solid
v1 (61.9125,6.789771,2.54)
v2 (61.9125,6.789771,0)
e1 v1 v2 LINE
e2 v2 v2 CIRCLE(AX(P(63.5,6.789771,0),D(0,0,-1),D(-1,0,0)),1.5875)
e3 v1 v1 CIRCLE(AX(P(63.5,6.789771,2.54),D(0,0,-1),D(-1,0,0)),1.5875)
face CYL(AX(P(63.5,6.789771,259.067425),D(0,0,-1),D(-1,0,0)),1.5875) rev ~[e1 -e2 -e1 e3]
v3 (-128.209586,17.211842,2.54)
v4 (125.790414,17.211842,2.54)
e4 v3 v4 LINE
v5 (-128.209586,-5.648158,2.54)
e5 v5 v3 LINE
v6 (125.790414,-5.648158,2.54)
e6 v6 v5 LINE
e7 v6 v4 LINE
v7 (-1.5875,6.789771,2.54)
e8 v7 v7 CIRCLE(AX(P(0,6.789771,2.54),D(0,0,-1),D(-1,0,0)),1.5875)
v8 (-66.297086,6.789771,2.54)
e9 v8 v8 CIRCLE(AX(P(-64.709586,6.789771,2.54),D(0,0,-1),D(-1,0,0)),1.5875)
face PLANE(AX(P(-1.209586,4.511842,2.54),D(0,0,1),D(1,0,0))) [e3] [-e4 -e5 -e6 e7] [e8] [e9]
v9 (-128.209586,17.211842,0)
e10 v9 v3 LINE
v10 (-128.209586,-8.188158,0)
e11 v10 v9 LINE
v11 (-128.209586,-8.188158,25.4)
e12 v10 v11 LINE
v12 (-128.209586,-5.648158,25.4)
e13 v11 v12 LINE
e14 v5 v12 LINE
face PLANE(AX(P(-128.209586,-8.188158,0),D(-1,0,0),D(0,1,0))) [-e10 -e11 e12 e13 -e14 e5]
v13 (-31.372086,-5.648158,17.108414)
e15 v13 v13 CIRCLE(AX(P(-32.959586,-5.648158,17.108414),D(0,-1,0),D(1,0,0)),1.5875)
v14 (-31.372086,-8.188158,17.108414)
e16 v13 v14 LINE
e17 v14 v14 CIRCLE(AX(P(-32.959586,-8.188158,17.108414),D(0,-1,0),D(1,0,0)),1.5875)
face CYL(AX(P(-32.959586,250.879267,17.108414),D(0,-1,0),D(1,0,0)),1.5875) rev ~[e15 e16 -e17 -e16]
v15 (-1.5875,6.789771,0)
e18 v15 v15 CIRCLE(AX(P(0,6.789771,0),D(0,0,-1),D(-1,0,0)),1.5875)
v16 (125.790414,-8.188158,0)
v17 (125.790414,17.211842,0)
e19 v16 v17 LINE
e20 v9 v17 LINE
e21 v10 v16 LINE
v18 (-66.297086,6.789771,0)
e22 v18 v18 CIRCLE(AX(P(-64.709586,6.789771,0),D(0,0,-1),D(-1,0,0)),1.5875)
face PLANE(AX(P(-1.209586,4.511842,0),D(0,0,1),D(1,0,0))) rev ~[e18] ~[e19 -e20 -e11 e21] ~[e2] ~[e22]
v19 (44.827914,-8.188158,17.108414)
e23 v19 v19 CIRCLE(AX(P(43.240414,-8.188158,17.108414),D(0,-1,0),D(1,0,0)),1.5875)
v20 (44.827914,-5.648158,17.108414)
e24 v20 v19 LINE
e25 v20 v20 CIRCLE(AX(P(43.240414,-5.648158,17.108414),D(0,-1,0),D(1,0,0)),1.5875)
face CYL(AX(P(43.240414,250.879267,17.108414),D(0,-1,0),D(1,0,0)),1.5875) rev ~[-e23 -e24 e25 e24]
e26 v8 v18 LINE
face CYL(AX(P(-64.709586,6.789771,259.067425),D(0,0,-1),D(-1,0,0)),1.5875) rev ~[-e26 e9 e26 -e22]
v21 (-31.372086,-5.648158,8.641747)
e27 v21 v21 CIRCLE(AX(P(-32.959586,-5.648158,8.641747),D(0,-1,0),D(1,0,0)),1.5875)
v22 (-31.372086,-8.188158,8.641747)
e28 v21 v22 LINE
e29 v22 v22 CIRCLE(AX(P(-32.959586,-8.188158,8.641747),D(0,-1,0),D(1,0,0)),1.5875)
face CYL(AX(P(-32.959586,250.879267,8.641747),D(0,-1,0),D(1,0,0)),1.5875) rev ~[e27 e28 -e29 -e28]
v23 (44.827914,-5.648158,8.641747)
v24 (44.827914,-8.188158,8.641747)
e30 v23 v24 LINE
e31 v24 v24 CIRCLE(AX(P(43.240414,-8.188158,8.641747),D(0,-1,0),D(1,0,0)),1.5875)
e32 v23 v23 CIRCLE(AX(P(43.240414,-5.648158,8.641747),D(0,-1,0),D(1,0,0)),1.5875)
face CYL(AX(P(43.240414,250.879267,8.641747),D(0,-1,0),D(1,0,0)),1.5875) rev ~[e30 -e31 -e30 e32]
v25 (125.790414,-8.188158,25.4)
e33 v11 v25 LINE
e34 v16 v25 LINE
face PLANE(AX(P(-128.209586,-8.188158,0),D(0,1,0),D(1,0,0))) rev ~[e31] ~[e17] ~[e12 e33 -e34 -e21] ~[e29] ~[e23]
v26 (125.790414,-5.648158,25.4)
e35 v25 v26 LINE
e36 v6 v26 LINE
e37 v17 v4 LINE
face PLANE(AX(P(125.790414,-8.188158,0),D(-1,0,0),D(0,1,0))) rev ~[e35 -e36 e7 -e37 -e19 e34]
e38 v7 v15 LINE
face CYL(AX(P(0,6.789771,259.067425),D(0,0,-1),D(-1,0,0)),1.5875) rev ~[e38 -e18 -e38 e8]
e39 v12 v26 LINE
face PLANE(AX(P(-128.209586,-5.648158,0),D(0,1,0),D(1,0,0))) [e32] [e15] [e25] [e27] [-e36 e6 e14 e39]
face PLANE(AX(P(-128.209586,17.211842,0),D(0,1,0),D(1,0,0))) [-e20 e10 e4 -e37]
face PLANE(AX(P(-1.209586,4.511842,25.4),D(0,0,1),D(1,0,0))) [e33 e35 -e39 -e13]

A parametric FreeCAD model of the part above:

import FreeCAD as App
import Part
import Sketcher

V = App.Vector
Q = App.Units.Quantity


def faces_at(feature, points):
    """Names of the faces that lie closest to the given points."""
    faces = feature.Shape.Faces
    near = lambda p: min(range(len(faces)), key=lambda i: faces[i].distToShape(Part.Vertex(*p))[0])
    return sorted({f"Face{near(p) + 1}" for p in points})


def add_polygon(sketch, points):
    """Adds a closed chain of lines whose ends are joined by coincident constraints."""
    first, n = sketch.GeometryCount, len(points)
    for a, b in zip(points, points[1:] + points[:1]):
        sketch.addGeometry(Part.LineSegment(App.Vector(*a, 0), App.Vector(*b, 0)), False)
    for i in range(n):
        sketch.addConstraint(Sketcher.Constraint("Coincident", first + i, 2, first + (i + 1) % n, 1))

doc = App.newDocument("Part")
body = doc.addObject("PartDesign::Body", "Body")

# Sketch on XY plane
sketch1 = body.newObject("Sketcher::SketchObject", "Sketch")
sketch1.AttachmentSupport = (doc.getObject("XY_Plane"), [""])
sketch1.MapMode = "FlatFace"
add_polygon(sketch1, [(-128, 17), (-128, -8), (126, -8), (126, 17)])  # lines 0-3
sketch1.addConstraint([
    Sketcher.Constraint("Vertical", 0),
    Sketcher.Constraint("Horizontal", 1),
    Sketcher.Constraint("Vertical", 2),
    Sketcher.Constraint("Horizontal", 3),
    Sketcher.Constraint("DistanceX", 1, 1, 1, 2, Q("10 in")),
    Sketcher.Constraint("DistanceY", 0, 2, 0, 1, Q("1 in")),
    Sketcher.Constraint("DistanceX", 0, 2, -1, 1, Q("128.209586 mm")),
    Sketcher.Constraint("DistanceY", 0, 2, -1, 1, Q("8.188158 mm")),
])
pad1 = body.newObject("PartDesign::Pad", "Pad")
pad1.Profile = sketch1
pad1.Length = Q("1 in")
doc.recompute()

thickness = body.newObject("PartDesign::Thickness", "Thickness")
thickness.Base = (pad1, faces_at(pad1, [
    (-1.21, 4.512, 25.4),
    (-1.21, 17.212, 12.7),
    (125.79, 4.512, 12.7),
    (-128.21, 4.512, 12.7),
]))
thickness.Value = Q("0.1 in")
thickness.Reversed = True
thickness.Join = "Arc"

# Sketch on XY plane
sketch2 = body.newObject("Sketcher::SketchObject", "Sketch001")
sketch2.AttachmentSupport = (doc.getObject("XY_Plane"), [""])
sketch2.MapMode = "FlatFace"
sketch2.AttachmentOffset = App.Placement(V(0, 0, 0.1 * 25.4), App.Rotation())
sketch2.addGeometry([
    Part.Circle(V(63.5, 6.8, 0), V(0, 0, 1), 1.6),
    Part.Circle(V(0, 6.8, 0), V(0, 0, 1), 1.6),
    Part.Circle(V(-64.7, 6.8, 0), V(0, 0, 1), 1.6),
], False)
sketch2.addConstraint([
    Sketcher.Constraint("Equal", 0, 1),
    Sketcher.Constraint("Equal", 1, 2),
    Sketcher.Constraint("PointOnObject", 1, 3, -2),
    Sketcher.Constraint("Horizontal", 0, 3, 1, 3),
    Sketcher.Constraint("Horizontal", 1, 3, 2, 3),
    Sketcher.Constraint("Diameter", 0, Q("0.125 in")),
    Sketcher.Constraint("DistanceX", -1, 1, 0, 3, Q("2.5 in")),
    Sketcher.Constraint("DistanceY", -1, 1, 0, 3, Q("6.789771 mm")),
    Sketcher.Constraint("DistanceX", 2, 3, -1, 1, Q("64.709586 mm")),
])
doc.recompute()
hole = body.newObject("PartDesign::Hole", "Hole")
hole.Profile = sketch2
hole.ThreadType = "None"
hole.Diameter = Q("0.125 in")
hole.DepthType = "ThroughAll"

# Sketch on XZ plane
sketch3 = body.newObject("Sketcher::SketchObject", "Sketch002")
sketch3.AttachmentSupport = (doc.getObject("XZ_Plane"), [""])
sketch3.MapMode = "FlatFace"
sketch3.AttachmentOffset = App.Placement(V(0, 0, 5.648158), App.Rotation())
sketch3.addGeometry([
    Part.Circle(V(43.2, 8.6, 0), V(0, 0, 1), 1.6),
    Part.Circle(V(43.2, 17.1, 0), V(0, 0, 1), 1.6),
    Part.Circle(V(-33, 17.1, 0), V(0, 0, 1), 1.6),
    Part.Circle(V(-33, 8.6, 0), V(0, 0, 1), 1.6),
], False)
sketch3.addConstraint([
    Sketcher.Constraint("Equal", 0, 1),
    Sketcher.Constraint("Equal", 1, 2),
    Sketcher.Constraint("Equal", 2, 3),
    Sketcher.Constraint("Horizontal", 1, 3, 2, 3),
    Sketcher.Constraint("Horizontal", 0, 3, 3, 3),
    Sketcher.Constraint("Vertical", 0, 3, 1, 3),
    Sketcher.Constraint("Vertical", 2, 3, 3, 3),
    Sketcher.Constraint("Diameter", 0, Q("0.125 in")),
    Sketcher.Constraint("DistanceX", 2, 3, 1, 3, Q("3 in")),
    Sketcher.Constraint("DistanceX", -1, 1, 0, 3, Q("43.240414 mm")),
    Sketcher.Constraint("DistanceY", -1, 1, 0, 3, Q("8.641747 mm")),
    Sketcher.Constraint("DistanceY", -1, 1, 1, 3, Q("17.108414 mm")),
])
doc.recompute()
hole2 = body.newObject("PartDesign::Hole", "Hole001")
hole2.Profile = sketch3
hole2.ThreadType = "None"
hole2.Diameter = Q("0.125 in")
hole2.DepthType = "ThroughAll"
hole2.Reversed = True

doc.recompute()
